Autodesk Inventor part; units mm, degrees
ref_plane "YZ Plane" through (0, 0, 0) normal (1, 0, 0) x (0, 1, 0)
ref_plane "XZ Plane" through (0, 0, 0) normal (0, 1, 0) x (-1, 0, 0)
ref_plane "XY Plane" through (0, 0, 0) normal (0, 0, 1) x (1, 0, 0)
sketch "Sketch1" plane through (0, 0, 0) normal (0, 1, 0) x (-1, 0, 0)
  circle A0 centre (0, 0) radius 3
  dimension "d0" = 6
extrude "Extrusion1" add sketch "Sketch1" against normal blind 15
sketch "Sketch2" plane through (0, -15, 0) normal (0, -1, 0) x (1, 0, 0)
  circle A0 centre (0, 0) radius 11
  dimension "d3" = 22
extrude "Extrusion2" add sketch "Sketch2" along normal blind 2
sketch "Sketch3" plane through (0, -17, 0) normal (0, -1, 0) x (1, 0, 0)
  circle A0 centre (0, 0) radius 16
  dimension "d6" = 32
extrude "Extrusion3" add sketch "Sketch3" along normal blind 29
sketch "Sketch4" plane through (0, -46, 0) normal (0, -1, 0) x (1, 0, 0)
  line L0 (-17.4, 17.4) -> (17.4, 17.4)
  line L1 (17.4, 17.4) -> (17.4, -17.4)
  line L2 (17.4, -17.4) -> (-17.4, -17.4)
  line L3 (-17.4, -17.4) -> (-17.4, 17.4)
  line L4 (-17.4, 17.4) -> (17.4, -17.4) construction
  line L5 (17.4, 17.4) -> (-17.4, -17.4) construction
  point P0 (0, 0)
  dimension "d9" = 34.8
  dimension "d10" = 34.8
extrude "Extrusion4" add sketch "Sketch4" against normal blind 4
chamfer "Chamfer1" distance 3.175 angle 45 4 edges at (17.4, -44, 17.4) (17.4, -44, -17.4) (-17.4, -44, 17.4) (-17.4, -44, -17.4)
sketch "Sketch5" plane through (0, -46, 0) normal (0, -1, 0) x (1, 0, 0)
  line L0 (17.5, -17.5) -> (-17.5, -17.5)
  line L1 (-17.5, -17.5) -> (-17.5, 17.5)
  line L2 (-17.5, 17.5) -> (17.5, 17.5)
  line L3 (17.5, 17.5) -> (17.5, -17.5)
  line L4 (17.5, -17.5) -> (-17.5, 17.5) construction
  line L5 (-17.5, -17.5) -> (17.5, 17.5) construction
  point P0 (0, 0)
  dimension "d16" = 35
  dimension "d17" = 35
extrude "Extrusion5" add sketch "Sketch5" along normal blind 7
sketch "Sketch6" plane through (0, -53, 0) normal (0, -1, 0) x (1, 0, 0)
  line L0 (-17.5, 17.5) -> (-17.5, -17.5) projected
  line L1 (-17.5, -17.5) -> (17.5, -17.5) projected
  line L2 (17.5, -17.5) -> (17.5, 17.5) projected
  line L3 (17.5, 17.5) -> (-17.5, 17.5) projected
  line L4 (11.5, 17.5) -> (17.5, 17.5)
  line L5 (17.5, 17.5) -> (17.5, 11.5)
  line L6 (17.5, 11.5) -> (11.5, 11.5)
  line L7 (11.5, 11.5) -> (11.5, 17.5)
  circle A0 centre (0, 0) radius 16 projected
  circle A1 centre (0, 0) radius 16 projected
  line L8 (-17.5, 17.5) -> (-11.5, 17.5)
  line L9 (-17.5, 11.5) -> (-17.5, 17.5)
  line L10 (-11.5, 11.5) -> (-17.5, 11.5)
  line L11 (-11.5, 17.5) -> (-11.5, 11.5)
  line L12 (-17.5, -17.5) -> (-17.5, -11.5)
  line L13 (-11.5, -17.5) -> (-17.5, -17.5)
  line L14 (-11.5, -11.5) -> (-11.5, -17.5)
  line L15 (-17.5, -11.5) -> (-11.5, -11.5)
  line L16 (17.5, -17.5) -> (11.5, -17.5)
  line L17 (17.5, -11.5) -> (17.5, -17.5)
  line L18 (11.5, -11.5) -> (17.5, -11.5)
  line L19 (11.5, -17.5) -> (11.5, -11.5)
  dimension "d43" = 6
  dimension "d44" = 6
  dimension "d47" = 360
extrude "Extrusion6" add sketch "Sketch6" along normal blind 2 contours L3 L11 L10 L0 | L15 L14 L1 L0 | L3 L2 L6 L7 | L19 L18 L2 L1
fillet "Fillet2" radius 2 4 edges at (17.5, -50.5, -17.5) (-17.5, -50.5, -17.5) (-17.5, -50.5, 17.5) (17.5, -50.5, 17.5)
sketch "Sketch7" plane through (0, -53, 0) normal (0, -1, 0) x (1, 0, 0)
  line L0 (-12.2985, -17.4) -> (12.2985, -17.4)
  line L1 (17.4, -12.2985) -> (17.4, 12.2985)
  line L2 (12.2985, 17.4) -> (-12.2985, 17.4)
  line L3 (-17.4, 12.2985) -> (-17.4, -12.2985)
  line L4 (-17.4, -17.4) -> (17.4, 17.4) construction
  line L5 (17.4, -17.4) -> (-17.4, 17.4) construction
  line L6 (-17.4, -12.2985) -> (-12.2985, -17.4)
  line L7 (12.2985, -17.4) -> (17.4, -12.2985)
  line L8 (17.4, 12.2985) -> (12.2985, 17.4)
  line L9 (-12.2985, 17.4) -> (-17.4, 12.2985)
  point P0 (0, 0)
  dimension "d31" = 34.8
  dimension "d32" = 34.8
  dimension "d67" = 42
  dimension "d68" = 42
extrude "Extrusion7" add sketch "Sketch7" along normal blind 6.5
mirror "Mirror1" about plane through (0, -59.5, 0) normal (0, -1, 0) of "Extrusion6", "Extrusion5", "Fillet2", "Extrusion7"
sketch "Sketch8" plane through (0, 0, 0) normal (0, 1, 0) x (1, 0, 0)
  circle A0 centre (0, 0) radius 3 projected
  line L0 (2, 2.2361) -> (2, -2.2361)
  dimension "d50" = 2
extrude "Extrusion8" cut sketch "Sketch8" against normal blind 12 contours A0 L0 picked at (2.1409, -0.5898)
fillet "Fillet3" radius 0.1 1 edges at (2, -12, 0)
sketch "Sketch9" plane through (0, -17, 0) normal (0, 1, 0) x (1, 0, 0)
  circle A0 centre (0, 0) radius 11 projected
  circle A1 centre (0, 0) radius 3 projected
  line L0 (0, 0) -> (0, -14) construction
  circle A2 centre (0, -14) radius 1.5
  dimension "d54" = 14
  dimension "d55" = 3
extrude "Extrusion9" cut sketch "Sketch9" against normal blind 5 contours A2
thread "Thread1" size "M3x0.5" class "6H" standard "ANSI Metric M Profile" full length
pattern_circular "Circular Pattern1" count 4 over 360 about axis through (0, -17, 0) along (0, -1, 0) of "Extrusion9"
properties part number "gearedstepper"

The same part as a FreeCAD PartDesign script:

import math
import FreeCAD as App
import Part
import Sketcher
from FreeCAD import Vector


def edges_at(feature, points):
    """Names of the edges that pass closest to the given points."""
    edges = feature.Shape.Edges
    near = lambda p: min(range(len(edges)), key=lambda i: edges[i].distToShape(Part.Vertex(*p))[0])
    return sorted({f"Edge{near(p) + 1}" for p in points})


def add_polygon(sketch, points):
    """Adds a closed chain of lines whose ends are joined by coincident constraints."""
    first, n = sketch.GeometryCount, len(points)
    for a, b in zip(points, points[1:] + points[:1]):
        sketch.addGeometry(Part.LineSegment(App.Vector(*a, 0), App.Vector(*b, 0)), False)
    for i in range(n):
        sketch.addConstraint(Sketcher.Constraint("Coincident", first + i, 2, first + (i + 1) % n, 1))

doc = App.newDocument("Part")
params = doc.addObject("Spreadsheet::Sheet", "Params")
for row, (alias, value) in enumerate([
    ("sketch1_diameter", "6 mm"),
    ("pad1_length", "15 mm"),
    ("sketch2_diameter", "22 mm"),
    ("pad2_length", "2 mm"),
    ("sketch3_diameter", "32 mm"),
    ("pad3_length", "29 mm"),
    ("sketch4_width", "34.8 mm"),
    ("pad4_length", "4 mm"),
    ("chamfer_size", "3.175 mm"),
    ("sketch5_width", "35 mm"),
    ("pad5_length", "7 mm"),
    ("sketch6_width", "6 mm"),
    ("pad6_length", "2 mm"),
    ("fillet_radius", "2 mm"),
    ("pad7_length", "6.5 mm"),
    ("sketch8_radius", "3 mm"),
    ("pocket1_length", "12 mm"),
    ("fillet2_radius", "0.1 mm"),
    ("sketch9_diameter", "3 mm"),
    ("pocket2_length", "5 mm"),
], start=1):
    params.set(f"A{row}", alias)
    params.set(f"B{row}", "=" + value)
    params.setAlias(f"B{row}", alias)

body = doc.addObject("PartDesign::Body", "Body")

# Sketch on XZ plane
sketch1 = body.newObject("Sketcher::SketchObject", "Sketch")
sketch1.AttachmentSupport = (doc.getObject("XZ_Plane"), [""])
sketch1.MapMode = "FlatFace"
sketch1.addGeometry(Part.Circle(Vector(0, 0, 0), Vector(0, 0, 1), 3), False)
sketch1.addConstraint([
    Sketcher.Constraint("Coincident", 0, 3, -1, 1),
    Sketcher.Constraint("Diameter", 0, 6.0),
])
sketch1.setExpression("Constraints[1]", "Params.sketch1_diameter")
pad1 = body.newObject("PartDesign::Pad", "Pad")
pad1.Profile = sketch1
pad1.setExpression("Length", "Params.pad1_length")

# Sketch on XZ plane
sketch2 = body.newObject("Sketcher::SketchObject", "Sketch001")
sketch2.AttachmentSupport = (doc.getObject("XZ_Plane"), [""])
sketch2.MapMode = "FlatFace"
sketch2.AttachmentOffset = App.Placement(Vector(0, 0, 15), App.Rotation())
sketch2.addGeometry(Part.Circle(Vector(0, 0, 0), Vector(0, 0, 1), 11), False)
sketch2.addConstraint([
    Sketcher.Constraint("Coincident", 0, 3, -1, 1),
    Sketcher.Constraint("Diameter", 0, 22.0),
])
sketch2.setExpression("Constraints[1]", "Params.sketch2_diameter")
pad2 = body.newObject("PartDesign::Pad", "Pad001")
pad2.Profile = sketch2
pad2.setExpression("Length", "Params.pad2_length")

# Sketch on XZ plane
sketch3 = body.newObject("Sketcher::SketchObject", "Sketch002")
sketch3.AttachmentSupport = (doc.getObject("XZ_Plane"), [""])
sketch3.MapMode = "FlatFace"
sketch3.AttachmentOffset = App.Placement(Vector(0, 0, 17), App.Rotation())
sketch3.addGeometry(Part.Circle(Vector(0, 0, 0), Vector(0, 0, 1), 16), False)
sketch3.addConstraint([
    Sketcher.Constraint("Coincident", 0, 3, -1, 1),
    Sketcher.Constraint("Diameter", 0, 32.0),
])
sketch3.setExpression("Constraints[1]", "Params.sketch3_diameter")
pad3 = body.newObject("PartDesign::Pad", "Pad002")
pad3.Profile = sketch3
pad3.setExpression("Length", "Params.pad3_length")

# Sketch on XZ plane
sketch4 = body.newObject("Sketcher::SketchObject", "Sketch003")
sketch4.AttachmentSupport = (doc.getObject("XZ_Plane"), [""])
sketch4.MapMode = "FlatFace"
sketch4.AttachmentOffset = App.Placement(Vector(0, 0, 46), App.Rotation())
add_polygon(sketch4, [(17, 17), (-17, 17), (-17, -17), (17, -17)])  # lines 0-3
sketch4.addConstraint([
    Sketcher.Constraint("Horizontal", 0),
    Sketcher.Constraint("Vertical", 1),
    Sketcher.Constraint("Horizontal", 2),
    Sketcher.Constraint("Vertical", 3),
    Sketcher.Constraint("Symmetric", 0, 2, 2, 2, -1, 1),
    Sketcher.Constraint("Equal", 2, 1),
    Sketcher.Constraint("DistanceX", 0, 2, 0, 1, 34.8),
])
sketch4.setExpression("Constraints[10]", "Params.sketch4_width")
pad4 = body.newObject("PartDesign::Pad", "Pad003")
pad4.Profile = sketch4
pad4.setExpression("Length", "Params.pad4_length")
pad4.Reversed = True
doc.recompute()

chamfer = body.newObject("PartDesign::Chamfer", "Chamfer")
chamfer.Base = (pad4, edges_at(pad4, [
    (17.4, -44, 17.4),
    (17.4, -44, -17.4),
    (-17.4, -44, 17.4),
    (-17.4, -44, -17.4),
]))
chamfer.setExpression("Size", "Params.chamfer_size")

# Sketch on XZ plane
sketch5 = body.newObject("Sketcher::SketchObject", "Sketch004")
sketch5.AttachmentSupport = (doc.getObject("XZ_Plane"), [""])
sketch5.MapMode = "FlatFace"
sketch5.AttachmentOffset = App.Placement(Vector(0, 0, 46), App.Rotation())
add_polygon(sketch5, [(-18, -18), (18, -18), (18, 18), (-18, 18)])  # lines 0-3
sketch5.addConstraint([
    Sketcher.Constraint("Horizontal", 0),
    Sketcher.Constraint("Vertical", 1),
    Sketcher.Constraint("Horizontal", 2),
    Sketcher.Constraint("Vertical", 3),
    Sketcher.Constraint("Symmetric", 0, 2, 2, 2, -1, 1),
    Sketcher.Constraint("Equal", 2, 1),
    Sketcher.Constraint("DistanceX", 0, 1, 0, 2, 35.0),
])
sketch5.setExpression("Constraints[10]", "Params.sketch5_width")
pad5 = body.newObject("PartDesign::Pad", "Pad004")
pad5.Profile = sketch5
pad5.setExpression("Length", "Params.pad5_length")

# Sketch on XZ plane
sketch6 = body.newObject("Sketcher::SketchObject", "Sketch005")
sketch6.AttachmentSupport = (doc.getObject("XZ_Plane"), [""])
sketch6.MapMode = "FlatFace"
sketch6.AttachmentOffset = App.Placement(Vector(0, 0, 53), App.Rotation())
add_polygon(sketch6, [(-12, 18), (-18, 18), (-18, 12), (-12, 12)])  # lines 0-3
add_polygon(sketch6, [(-12, -12), (-18, -12), (-18, -18), (-12, -18)])  # lines 4-7
add_polygon(sketch6, [(18, 18), (12, 18), (12, 12), (18, 12)])  # lines 8-11
add_polygon(sketch6, [(12, -12), (12, -18), (18, -18), (18, -12)])  # lines 12-15
sketch6.addConstraint([
    Sketcher.Constraint("Horizontal", 0),
    Sketcher.Constraint("Vertical", 1),
    Sketcher.Constraint("Horizontal", 2),
    Sketcher.Constraint("Vertical", 3),
    Sketcher.Constraint("Horizontal", 4),
    Sketcher.Constraint("Vertical", 5),
    Sketcher.Constraint("Horizontal", 6),
    Sketcher.Constraint("Vertical", 7),
    Sketcher.Constraint("Horizontal", 8),
    Sketcher.Constraint("Vertical", 9),
    Sketcher.Constraint("Horizontal", 10),
    Sketcher.Constraint("Vertical", 11),
    Sketcher.Constraint("Vertical", 12),
    Sketcher.Constraint("Horizontal", 13),
    Sketcher.Constraint("Vertical", 14),
    Sketcher.Constraint("Horizontal", 15),
    Sketcher.Constraint("Symmetric", 6, 2, 8, 2, -1, 1),
    Sketcher.Constraint("Symmetric", 4, 2, 10, 2, -1, 1),
    Sketcher.Constraint("Symmetric", 3, 2, 12, 2, -1, 1),
    Sketcher.Constraint("Symmetric", 1, 2, 14, 2, -1, 1),
    Sketcher.Constraint("Symmetric", 3, 2, 8, 2, -2),
    Sketcher.Constraint("Symmetric", 1, 2, 10, 2, -2),
    Sketcher.Constraint("Equal", 15, 1),
    Sketcher.Constraint("DistanceX", 0, 2, 0, 1, 6.0),
    Sketcher.Constraint("DistanceY", 4, 2, 1, 2, 23.0),
    Sketcher.Constraint("DistanceX", 3, 2, 8, 2, 23.0),
])
sketch6.setExpression("Constraints[39]", "Params.sketch6_width")
pad6 = body.newObject("PartDesign::Pad", "Pad005")
pad6.Profile = sketch6
pad6.setExpression("Length", "Params.pad6_length")
doc.recompute()

fillet = body.newObject("PartDesign::Fillet", "Fillet")
fillet.Base = (pad6, edges_at(pad6, [
    (17.5, -50.5, -17.5),
    (-17.5, -50.5, -17.5),
    (-17.5, -50.5, 17.5),
    (17.5, -50.5, 17.5),
]))
fillet.setExpression("Radius", "Params.fillet_radius")

# Sketch on XZ plane
sketch7 = body.newObject("Sketcher::SketchObject", "Sketch006")
sketch7.AttachmentSupport = (doc.getObject("XZ_Plane"), [""])
sketch7.MapMode = "FlatFace"
sketch7.AttachmentOffset = App.Placement(Vector(0, 0, 53), App.Rotation())
add_polygon(sketch7, [(-17, -12), (-12, -17), (12, -17), (17, -12), (17, 12), (12, 17), (-12, 17), (-17, 12)])  # lines 0-7
sketch7.addConstraint([
    Sketcher.Constraint("Horizontal", 1),
    Sketcher.Constraint("Vertical", 3),
    Sketcher.Constraint("Horizontal", 5),
    Sketcher.Constraint("Vertical", 7),
    Sketcher.Constraint("Symmetric", 0, 2, 4, 2, -1, 1),
    Sketcher.Constraint("Symmetric", 2, 2, 6, 2, -1, 1),
    Sketcher.Constraint("Perpendicular", 0, 2),
    Sketcher.Constraint("Perpendicular", 2, 4),
    Sketcher.Constraint("Perpendicular", 4, 6),
    Sketcher.Constraint("Horizontal", 3, 2, 6, 2),
    Sketcher.Constraint("Vertical", 1, 2, 4, 2),
    Sketcher.Constraint("Equal", 5, 3),
    Sketcher.Constraint("DistanceY", 1, 2, 4, 2, 34.8),
    Sketcher.Constraint("DistanceX", 1, 1, 1, 2, 24.597),
])
pad7 = body.newObject("PartDesign::Pad", "Pad006")
pad7.Profile = sketch7
pad7.setExpression("Length", "Params.pad7_length")
doc.recompute()

datumplane = body.newObject("PartDesign::Plane", "DatumPlane")
datumplane.AttachmentSupport = (doc.getObject("XZ_Plane"), [""])
datumplane.MapMode = "FlatFace"
datumplane.AttachmentOffset = App.Placement(Vector(0, 0, 59.5), App.Rotation())
mirrored = body.newObject("PartDesign::Mirrored", "Mirrored")
mirrored.Originals = [pad6, pad5, fillet, pad7]
mirrored.MirrorPlane = (datumplane, [""])
body.Tip = mirrored

# Sketch on XZ plane
sketch8 = body.newObject("Sketcher::SketchObject", "Sketch007")
sketch8.AttachmentSupport = (doc.getObject("XZ_Plane"), [""])
sketch8.MapMode = "FlatFace"
sketch8.addGeometry([
    Part.ArcOfCircle(Part.Circle(Vector(0, 0, 0), Vector(0, 0, 1), 3), math.radians(-48), math.radians(48)),
    Part.LineSegment(Vector(2, 2.2, 0), Vector(2, -2.2, 0)),
], False)
sketch8.addConstraint([
    Sketcher.Constraint("Coincident", 0, 1, 1, 2),
    Sketcher.Constraint("Coincident", 1, 1, 0, 2),
    Sketcher.Constraint("Vertical", 1),
    Sketcher.Constraint("Coincident", 0, 3, -1, 1),
    Sketcher.Constraint("DistanceX", -1, 1, 0, 1, 2.0),
    Sketcher.Constraint("Radius", 0, 3.0),
])
sketch8.setExpression("Constraints[5]", "Params.sketch8_radius")
pocket1 = body.newObject("PartDesign::Pocket", "Pocket")
pocket1.Profile = sketch8
pocket1.setExpression("Length", "Params.pocket1_length")
pocket1.Reversed = True
doc.recompute()

fillet2 = body.newObject("PartDesign::Fillet", "Fillet001")
fillet2.Base = (pocket1, edges_at(pocket1, [(2, -12, 0)]))
fillet2.setExpression("Radius", "Params.fillet2_radius")

# Sketch on XZ plane
sketch9 = body.newObject("Sketcher::SketchObject", "Sketch008")
sketch9.AttachmentSupport = (doc.getObject("XZ_Plane"), [""])
sketch9.MapMode = "FlatFace"
sketch9.AttachmentOffset = App.Placement(Vector(0, 0, 17), App.Rotation())
sketch9.addGeometry(Part.Circle(Vector(0, 14, 0), Vector(0, 0, 1), 1.5), False)
sketch9.addConstraint([
    Sketcher.Constraint("PointOnObject", 0, 3, -2),
    Sketcher.Constraint("Diameter", 0, 3.0),
    Sketcher.Constraint("DistanceY", -1, 1, 0, 3, 14.0),
])
sketch9.setExpression("Constraints[1]", "Params.sketch9_diameter")
pocket2 = body.newObject("PartDesign::Pocket", "Pocket001")
pocket2.Profile = sketch9
pocket2.setExpression("Length", "Params.pocket2_length")
pocket2.Reversed = True
doc.recompute()

polarpattern = body.newObject("PartDesign::PolarPattern", "PolarPattern")
polarpattern.Originals = [pocket2]
polarpattern.Axis = (doc.getObject("Y_Axis"), [""])
polarpattern.Angle = 360
polarpattern.Occurrences = 4
body.Tip = polarpattern

doc.recompute()
